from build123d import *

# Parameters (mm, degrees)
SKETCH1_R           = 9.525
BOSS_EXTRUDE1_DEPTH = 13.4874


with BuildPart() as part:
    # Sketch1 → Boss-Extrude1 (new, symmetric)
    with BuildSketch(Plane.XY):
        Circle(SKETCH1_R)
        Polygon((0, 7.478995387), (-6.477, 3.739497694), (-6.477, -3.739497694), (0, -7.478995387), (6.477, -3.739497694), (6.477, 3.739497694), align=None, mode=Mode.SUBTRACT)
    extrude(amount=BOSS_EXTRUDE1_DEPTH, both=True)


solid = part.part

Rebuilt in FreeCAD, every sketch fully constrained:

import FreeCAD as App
import Part
import Sketcher
from FreeCAD import Vector
Q = App.Units.Quantity


def add_polygon(sketch, points):
    """Adds a closed chain of lines whose ends are joined by coincident constraints."""
    first, n = sketch.GeometryCount, len(points)
    for a, b in zip(points, points[1:] + points[:1]):
        sketch.addGeometry(Part.LineSegment(App.Vector(*a, 0), App.Vector(*b, 0)), False)
    for i in range(n):
        sketch.addConstraint(Sketcher.Constraint("Coincident", first + i, 2, first + (i + 1) % n, 1))

doc = App.newDocument("Part")
body = doc.addObject("PartDesign::Body", "Body")

# Sketch on XY plane
sketch1 = body.newObject("Sketcher::SketchObject", "Sketch")
sketch1.AttachmentSupport = (doc.getObject("XY_Plane"), [""])
sketch1.MapMode = "FlatFace"
sketch1.addGeometry(Part.Circle(Vector(0, 0, 0), Vector(0, 0, 1), 10), False)  # 0
add_polygon(sketch1, [(-6, 4), (0, 7), (6, 4), (6, -4), (0, -7), (-6, -4)])  # lines 1-6
sketch1.addConstraint(Sketcher.Constraint("Vertical", 3))
sketch1.addConstraint(Sketcher.Constraint("Vertical", 6))
sketch1.addConstraint(Sketcher.Constraint("Coincident", 0, 3, -1, 1))
sketch1.addConstraint(Sketcher.Constraint("Symmetric", 1, 2, 4, 2, -1, 1))
sketch1.addConstraint(Sketcher.Constraint("Symmetric", 2, 2, 5, 2, -1, 1))
sketch1.addConstraint(Sketcher.Constraint("PointOnObject", 1, 2, -2))
sketch1.addConstraint(Sketcher.Constraint("Parallel", 1, 4))
sketch1.addConstraint(Sketcher.Constraint("Horizontal", 3, 2, 5, 2))
sketch1.addConstraint(Sketcher.Constraint("Diameter", 0, Q("0.75 in")))
sketch1.addConstraint(Sketcher.Constraint("Angle", 1, Q("30 deg")))
sketch1.addConstraint(Sketcher.Constraint("DistanceX", 5, 2, 3, 2, Q("0.51 in")))
sketch1.addConstraint(Sketcher.Constraint("DistanceY", 3, 2, 3, 1, 7.478995))
pad1 = body.newObject("PartDesign::Pad", "Pad")
pad1.Profile = sketch1
pad1.Length = Q("1.062 in")
pad1.Midplane = True

doc.recompute()
